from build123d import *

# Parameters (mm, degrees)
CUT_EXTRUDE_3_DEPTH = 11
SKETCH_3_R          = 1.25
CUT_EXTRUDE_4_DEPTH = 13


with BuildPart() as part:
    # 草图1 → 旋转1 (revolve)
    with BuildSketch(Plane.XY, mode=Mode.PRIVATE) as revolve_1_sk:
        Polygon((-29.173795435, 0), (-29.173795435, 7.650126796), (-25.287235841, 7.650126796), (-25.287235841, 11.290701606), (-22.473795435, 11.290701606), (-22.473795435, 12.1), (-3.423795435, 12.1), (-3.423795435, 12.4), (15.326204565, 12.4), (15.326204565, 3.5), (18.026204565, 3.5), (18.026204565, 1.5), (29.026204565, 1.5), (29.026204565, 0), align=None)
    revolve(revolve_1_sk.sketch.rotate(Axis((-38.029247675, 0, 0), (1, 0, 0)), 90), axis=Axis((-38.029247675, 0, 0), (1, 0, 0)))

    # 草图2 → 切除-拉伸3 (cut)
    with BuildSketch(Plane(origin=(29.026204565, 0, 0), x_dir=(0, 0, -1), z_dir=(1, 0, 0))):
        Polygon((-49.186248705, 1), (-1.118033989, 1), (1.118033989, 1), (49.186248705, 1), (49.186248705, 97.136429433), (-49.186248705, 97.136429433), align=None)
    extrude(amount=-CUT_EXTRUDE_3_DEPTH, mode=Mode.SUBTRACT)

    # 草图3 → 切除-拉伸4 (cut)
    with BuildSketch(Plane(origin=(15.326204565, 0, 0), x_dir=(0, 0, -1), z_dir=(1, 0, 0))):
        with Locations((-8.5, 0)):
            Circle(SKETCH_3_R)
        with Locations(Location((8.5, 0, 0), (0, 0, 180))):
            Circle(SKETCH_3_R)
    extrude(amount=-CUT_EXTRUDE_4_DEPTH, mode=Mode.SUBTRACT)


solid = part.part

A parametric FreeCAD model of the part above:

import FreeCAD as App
import Part
import Sketcher
from FreeCAD import Vector
Q = App.Units.Quantity


def add_polygon(sketch, points):
    """Adds a closed chain of lines whose ends are joined by coincident constraints."""
    first, n = sketch.GeometryCount, len(points)
    for a, b in zip(points, points[1:] + points[:1]):
        sketch.addGeometry(Part.LineSegment(App.Vector(*a, 0), App.Vector(*b, 0)), False)
    for i in range(n):
        sketch.addConstraint(Sketcher.Constraint("Coincident", first + i, 2, first + (i + 1) % n, 1))

doc = App.newDocument("Part")
body = doc.addObject("PartDesign::Body", "Body")

sketch1 = doc.addObject("Sketcher::SketchObject", "Sketch")
body.addObject(sketch1)
sketch1.AttachmentSupport = (doc.XY_Plane, [""])
sketch1.MapMode = "FlatFace"
add_polygon(sketch1, [(-29.17, 7.65), (-29.17, 0), (29.03, 0), (29.03, 1.5), (18.03, 1.5), (18.03, 3.5), (15.33, 3.5), (15.33, 12.4), (-3.42, 12.4), (-3.42, 12.1), (-22.47, 12.1), (-22.47, 11.29), (-25.29, 11.29), (-25.29, 7.65)])
sketch1.addConstraint([
    Sketcher.Constraint("Vertical", 0),
    Sketcher.Constraint("Horizontal", 1),
    Sketcher.Constraint("Vertical", 2),
    Sketcher.Constraint("Horizontal", 3),
    Sketcher.Constraint("Vertical", 4),
    Sketcher.Constraint("Horizontal", 5),
    Sketcher.Constraint("Vertical", 6),
    Sketcher.Constraint("Horizontal", 7),
    Sketcher.Constraint("Vertical", 8),
    Sketcher.Constraint("Horizontal", 9),
    Sketcher.Constraint("Vertical", 10),
    Sketcher.Constraint("Horizontal", 11),
    Sketcher.Constraint("Vertical", 12),
    Sketcher.Constraint("Horizontal", 13),
    Sketcher.Constraint("PointOnObject", 0, 2, -1),
    Sketcher.Constraint("DistanceX", 3, 2, 3, 1, Q("11 mm")),
    Sketcher.Constraint("DistanceY", 4, 1, 4, 2, Q("2 mm")),
    Sketcher.Constraint("DistanceX", 1, 1, 1, 2, Q("58.2 mm")),
    Sketcher.Constraint("DistanceX", 5, 2, 5, 1, Q("2.7 mm")),
    Sketcher.Constraint("DistanceY", 2, 1, 2, 2, Q("1.5 mm")),
    Sketcher.Constraint("DistanceY", 6, 1, 6, 2, Q("8.9 mm")),
    Sketcher.Constraint("DistanceY", 8, 2, 8, 1, Q("0.3 mm")),
    Sketcher.Constraint("DistanceX", 7, 2, 7, 1, Q("18.75 mm")),
    Sketcher.Constraint("DistanceX", 9, 2, 9, 1, Q("19.05 mm")),
    Sketcher.Constraint("DistanceY", 10, 2, 10, 1, Q("0.809298 mm")),
    Sketcher.Constraint("DistanceX", 11, 2, 11, 1, Q("2.81344 mm")),
    Sketcher.Constraint("DistanceY", 0, 2, 0, 1, Q("7.650127 mm")),
    Sketcher.Constraint("DistanceX", 0, 2, -1, 1, Q("29.173795 mm")),
])
revolution = doc.addObject("PartDesign::Revolution", "Revolution")
body.addObject(revolution)
revolution.Profile = sketch1
revolution.ReferenceAxis = (sketch1, ["H_Axis"])
revolution.Angle = 360

sketch2 = doc.addObject("Sketcher::SketchObject", "Sketch001")
body.addObject(sketch2)
sketch2.AttachmentSupport = (doc.YZ_Plane, [""])
sketch2.MapMode = "FlatFace"
sketch2.AttachmentOffset = App.Placement(Vector(0, 0, 29.026205), App.Rotation())
add_polygon(sketch2, [(1, 49), (1, -49), (97, -49), (97, 49)])
sketch2.addConstraint([
    Sketcher.Constraint("Vertical", 0),
    Sketcher.Constraint("Horizontal", 1),
    Sketcher.Constraint("Vertical", 2),
    Sketcher.Constraint("Horizontal", 3),
    Sketcher.Constraint("DistanceX", -1, 1, 0, 2, Q("1 mm")),
    Sketcher.Constraint("DistanceX", 1, 1, 1, 2, Q("96.136429 mm")),
    Sketcher.Constraint("DistanceY", 0, 2, 0, 1, Q("98.372497 mm")),
    Sketcher.Constraint("DistanceY", 0, 2, -1, 1, Q("49.186249 mm")),
])
pocket1 = doc.addObject("PartDesign::Pocket", "Pocket")
body.addObject(pocket1)
pocket1.Profile = sketch2
pocket1.Length = 11

sketch3 = doc.addObject("Sketcher::SketchObject", "Sketch002")
body.addObject(sketch3)
sketch3.AttachmentSupport = (doc.YZ_Plane, [""])
sketch3.MapMode = "FlatFace"
sketch3.AttachmentOffset = App.Placement(Vector(0, 0, 15.326205), App.Rotation())
sketch3.addGeometry([
    Part.Circle(Vector(0, 8.5, 0), Vector(0, 0, 1), 1.2),
    Part.Circle(Vector(0, -8.5, 0), Vector(0, 0, 1), 1.2),
], False)
sketch3.addConstraint([
    Sketcher.Constraint("Equal", 0, 1),
    Sketcher.Constraint("Symmetric", 0, 3, 1, 3, -1, 1),
    Sketcher.Constraint("PointOnObject", 0, 3, -2),
    Sketcher.Constraint("Diameter", 0, Q("2.5 mm")),
    Sketcher.Constraint("DistanceY", 1, 3, 0, 3, Q("17 mm")),
])
pocket2 = doc.addObject("PartDesign::Pocket", "Pocket001")
body.addObject(pocket2)
pocket2.Profile = sketch3
pocket2.Length = 13

doc.recompute()
